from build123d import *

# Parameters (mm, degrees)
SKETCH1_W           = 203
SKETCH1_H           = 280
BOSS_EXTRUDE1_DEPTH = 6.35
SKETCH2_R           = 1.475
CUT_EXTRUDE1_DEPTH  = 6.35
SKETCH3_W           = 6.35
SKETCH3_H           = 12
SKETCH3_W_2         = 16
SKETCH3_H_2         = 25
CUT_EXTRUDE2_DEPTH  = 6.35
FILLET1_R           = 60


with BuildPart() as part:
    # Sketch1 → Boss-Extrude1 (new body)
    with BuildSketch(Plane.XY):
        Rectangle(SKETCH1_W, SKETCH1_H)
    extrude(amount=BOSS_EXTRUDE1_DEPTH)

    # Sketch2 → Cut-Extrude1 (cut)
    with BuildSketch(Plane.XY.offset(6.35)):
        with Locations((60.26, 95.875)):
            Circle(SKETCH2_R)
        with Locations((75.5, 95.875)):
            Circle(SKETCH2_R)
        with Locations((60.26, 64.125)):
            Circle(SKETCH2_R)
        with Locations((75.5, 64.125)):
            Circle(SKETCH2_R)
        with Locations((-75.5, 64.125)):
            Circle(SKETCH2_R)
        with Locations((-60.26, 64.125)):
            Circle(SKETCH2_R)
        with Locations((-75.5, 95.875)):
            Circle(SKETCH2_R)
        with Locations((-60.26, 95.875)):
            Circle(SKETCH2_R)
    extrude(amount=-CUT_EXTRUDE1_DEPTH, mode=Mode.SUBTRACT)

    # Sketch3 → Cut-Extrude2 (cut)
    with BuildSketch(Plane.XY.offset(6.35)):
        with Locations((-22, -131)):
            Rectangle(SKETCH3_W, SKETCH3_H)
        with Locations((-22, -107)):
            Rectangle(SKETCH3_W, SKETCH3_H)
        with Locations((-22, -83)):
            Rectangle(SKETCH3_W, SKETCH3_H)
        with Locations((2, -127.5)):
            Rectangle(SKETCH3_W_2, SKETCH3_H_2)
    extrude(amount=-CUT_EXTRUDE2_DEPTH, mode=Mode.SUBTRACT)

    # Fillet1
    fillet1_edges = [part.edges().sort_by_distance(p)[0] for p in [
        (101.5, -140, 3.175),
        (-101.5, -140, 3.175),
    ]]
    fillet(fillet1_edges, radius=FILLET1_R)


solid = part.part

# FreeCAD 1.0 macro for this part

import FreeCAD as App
import Part
import Sketcher
from FreeCAD import Vector
Q = App.Units.Quantity


def edges_at(feature, points):
    """Names of the edges that pass closest to the given points."""
    edges = feature.Shape.Edges
    near = lambda p: min(range(len(edges)), key=lambda i: edges[i].distToShape(Part.Vertex(*p))[0])
    return sorted({f"Edge{near(p) + 1}" for p in points})


def add_polygon(sketch, points):
    """Adds a closed chain of lines whose ends are joined by coincident constraints."""
    first, n = sketch.GeometryCount, len(points)
    for a, b in zip(points, points[1:] + points[:1]):
        sketch.addGeometry(Part.LineSegment(App.Vector(*a, 0), App.Vector(*b, 0)), False)
    for i in range(n):
        sketch.addConstraint(Sketcher.Constraint("Coincident", first + i, 2, first + (i + 1) % n, 1))

doc = App.newDocument("Part")
body = doc.addObject("PartDesign::Body", "Body")

# Sketch on XY plane
sketch1 = body.newObject("Sketcher::SketchObject", "Sketch")
sketch1.AttachmentSupport = (doc.getObject("XY_Plane"), [""])
sketch1.MapMode = "FlatFace"
add_polygon(sketch1, [(-102, 140), (-102, -140), (102, -140), (102, 140)])  # lines 0-3
sketch1.addConstraint(Sketcher.Constraint("Vertical", 0))
sketch1.addConstraint(Sketcher.Constraint("Horizontal", 1))
sketch1.addConstraint(Sketcher.Constraint("Vertical", 2))
sketch1.addConstraint(Sketcher.Constraint("Horizontal", 3))
sketch1.addConstraint(Sketcher.Constraint("Symmetric", 0, 2, 2, 2, -1, 1))
sketch1.addConstraint(Sketcher.Constraint("DistanceX", 1, 1, 1, 2, Q("203 mm")))
sketch1.addConstraint(Sketcher.Constraint("DistanceY", 0, 2, 0, 1, Q("280 mm")))
pad1 = body.newObject("PartDesign::Pad", "Pad")
pad1.Profile = sketch1
pad1.Length = 6.35

# Sketch on XY plane
sketch2 = body.newObject("Sketcher::SketchObject", "Sketch001")
sketch2.AttachmentSupport = (doc.getObject("XY_Plane"), [""])
sketch2.MapMode = "FlatFace"
sketch2.AttachmentOffset = App.Placement(Vector(0, 0, 6.35), App.Rotation())
sketch2.addGeometry(Part.Circle(Vector(60.3, 95.9, 0), Vector(0, 0, 1), 1.5), False)
sketch2.addGeometry(Part.Circle(Vector(75.5, 95.9, 0), Vector(0, 0, 1), 1.5), False)
sketch2.addGeometry(Part.Circle(Vector(60.3, 64.1, 0), Vector(0, 0, 1), 1.5), False)
sketch2.addGeometry(Part.Circle(Vector(75.5, 64.1, 0), Vector(0, 0, 1), 1.5), False)
sketch2.addGeometry(Part.Circle(Vector(-75.5, 64.1, 0), Vector(0, 0, 1), 1.5), False)
sketch2.addGeometry(Part.Circle(Vector(-60.3, 64.1, 0), Vector(0, 0, 1), 1.5), False)
sketch2.addGeometry(Part.Circle(Vector(-75.5, 95.9, 0), Vector(0, 0, 1), 1.5), False)
sketch2.addGeometry(Part.Circle(Vector(-60.3, 95.9, 0), Vector(0, 0, 1), 1.5), False)
sketch2.addConstraint(Sketcher.Constraint("Equal", 0, 1))
sketch2.addConstraint(Sketcher.Constraint("Equal", 1, 2))
sketch2.addConstraint(Sketcher.Constraint("Equal", 2, 3))
sketch2.addConstraint(Sketcher.Constraint("Equal", 3, 4))
sketch2.addConstraint(Sketcher.Constraint("Equal", 4, 5))
sketch2.addConstraint(Sketcher.Constraint("Equal", 5, 6))
sketch2.addConstraint(Sketcher.Constraint("Equal", 6, 7))
sketch2.addConstraint(Sketcher.Constraint("Symmetric", 3, 3, 4, 3, -2))
sketch2.addConstraint(Sketcher.Constraint("Symmetric", 2, 3, 5, 3, -2))
sketch2.addConstraint(Sketcher.Constraint("Symmetric", 1, 3, 6, 3, -2))
sketch2.addConstraint(Sketcher.Constraint("Symmetric", 0, 3, 7, 3, -2))
sketch2.addConstraint(Sketcher.Constraint("Horizontal", 0, 3, 1, 3))
sketch2.addConstraint(Sketcher.Constraint("Horizontal", 2, 3, 3, 3))
sketch2.addConstraint(Sketcher.Constraint("Vertical", 0, 3, 2, 3))
sketch2.addConstraint(Sketcher.Constraint("Vertical", 1, 3, 3, 3))
sketch2.addConstraint(Sketcher.Constraint("Diameter", 0, Q("2.95 mm")))
sketch2.addConstraint(Sketcher.Constraint("DistanceX", 4, 3, 3, 3, Q("151 mm")))
sketch2.addConstraint(Sketcher.Constraint("DistanceX", -1, 1, 0, 3, Q("60.26 mm")))
sketch2.addConstraint(Sketcher.Constraint("DistanceY", 2, 3, 0, 3, Q("31.75 mm")))
sketch2.addConstraint(Sketcher.Constraint("DistanceY", -1, 1, 0, 3, Q("95.875 mm")))
pocket1 = body.newObject("PartDesign::Pocket", "Pocket")
pocket1.Profile = sketch2
pocket1.Length = 6.35

# Sketch on XY plane
sketch3 = body.newObject("Sketcher::SketchObject", "Sketch002")
sketch3.AttachmentSupport = (doc.getObject("XY_Plane"), [""])
sketch3.MapMode = "FlatFace"
sketch3.AttachmentOffset = App.Placement(Vector(0, 0, 6.35), App.Rotation())
add_polygon(sketch3, [(-25, -125), (-25, -137), (-19, -137), (-19, -125)])  # lines 0-3
add_polygon(sketch3, [(-25, -101), (-25, -113), (-19, -113), (-19, -101)])  # lines 4-7
add_polygon(sketch3, [(-25, -77), (-25, -89), (-19, -89), (-19, -77)])  # lines 8-11
add_polygon(sketch3, [(-6, -115), (-6, -140), (10, -140), (10, -115)])  # lines 12-15
sketch3.addConstraint(Sketcher.Constraint("Vertical", 0))
sketch3.addConstraint(Sketcher.Constraint("Horizontal", 1))
sketch3.addConstraint(Sketcher.Constraint("Vertical", 2))
sketch3.addConstraint(Sketcher.Constraint("Horizontal", 3))
sketch3.addConstraint(Sketcher.Constraint("Vertical", 4))
sketch3.addConstraint(Sketcher.Constraint("Horizontal", 5))
sketch3.addConstraint(Sketcher.Constraint("Vertical", 6))
sketch3.addConstraint(Sketcher.Constraint("Horizontal", 7))
sketch3.addConstraint(Sketcher.Constraint("Vertical", 8))
sketch3.addConstraint(Sketcher.Constraint("Horizontal", 9))
sketch3.addConstraint(Sketcher.Constraint("Vertical", 10))
sketch3.addConstraint(Sketcher.Constraint("Horizontal", 11))
sketch3.addConstraint(Sketcher.Constraint("Vertical", 12))
sketch3.addConstraint(Sketcher.Constraint("Horizontal", 13))
sketch3.addConstraint(Sketcher.Constraint("Vertical", 14))
sketch3.addConstraint(Sketcher.Constraint("Horizontal", 15))
sketch3.addConstraint(Sketcher.Constraint("Vertical", 3, 2, 4, 2))
sketch3.addConstraint(Sketcher.Constraint("Vertical", 2, 2, 5, 2))
sketch3.addConstraint(Sketcher.Constraint("Vertical", 7, 2, 8, 2))
sketch3.addConstraint(Sketcher.Constraint("Vertical", 6, 2, 9, 2))
sketch3.addConstraint(Sketcher.Constraint("Equal", 2, 4))
sketch3.addConstraint(Sketcher.Constraint("Equal", 6, 8))
sketch3.addConstraint(Sketcher.Constraint("DistanceX", 13, 1, 13, 2, Q("16 mm")))
sketch3.addConstraint(Sketcher.Constraint("DistanceY", 0, 2, 0, 1, Q("12 mm")))
sketch3.addConstraint(Sketcher.Constraint("DistanceY", 12, 2, 12, 1, Q("25 mm")))
sketch3.addConstraint(Sketcher.Constraint("DistanceY", 0, 2, -1, 1, Q("137 mm")))
sketch3.addConstraint(Sketcher.Constraint("DistanceY", 4, 2, -1, 1, Q("113 mm")))
sketch3.addConstraint(Sketcher.Constraint("DistanceY", 8, 2, -1, 1, Q("89 mm")))
sketch3.addConstraint(Sketcher.Constraint("DistanceX", 12, 2, -1, 1, Q("6 mm")))
sketch3.addConstraint(Sketcher.Constraint("DistanceY", 12, 2, -1, 1, Q("140 mm")))
sketch3.addConstraint(Sketcher.Constraint("DistanceX", 1, 1, 1, 2, Q("6.35 mm")))
sketch3.addConstraint(Sketcher.Constraint("DistanceX", 0, 2, -1, 1, Q("25.175 mm")))
pocket2 = body.newObject("PartDesign::Pocket", "Pocket001")
pocket2.Profile = sketch3
pocket2.Length = 6.35
doc.recompute()

fillet = body.newObject("PartDesign::Fillet", "Fillet")
fillet.Base = (pocket2, edges_at(pocket2, [(101.5, -140, 3.175), (-101.5, -140, 3.175)]))
fillet.Radius = 60

doc.recompute()
